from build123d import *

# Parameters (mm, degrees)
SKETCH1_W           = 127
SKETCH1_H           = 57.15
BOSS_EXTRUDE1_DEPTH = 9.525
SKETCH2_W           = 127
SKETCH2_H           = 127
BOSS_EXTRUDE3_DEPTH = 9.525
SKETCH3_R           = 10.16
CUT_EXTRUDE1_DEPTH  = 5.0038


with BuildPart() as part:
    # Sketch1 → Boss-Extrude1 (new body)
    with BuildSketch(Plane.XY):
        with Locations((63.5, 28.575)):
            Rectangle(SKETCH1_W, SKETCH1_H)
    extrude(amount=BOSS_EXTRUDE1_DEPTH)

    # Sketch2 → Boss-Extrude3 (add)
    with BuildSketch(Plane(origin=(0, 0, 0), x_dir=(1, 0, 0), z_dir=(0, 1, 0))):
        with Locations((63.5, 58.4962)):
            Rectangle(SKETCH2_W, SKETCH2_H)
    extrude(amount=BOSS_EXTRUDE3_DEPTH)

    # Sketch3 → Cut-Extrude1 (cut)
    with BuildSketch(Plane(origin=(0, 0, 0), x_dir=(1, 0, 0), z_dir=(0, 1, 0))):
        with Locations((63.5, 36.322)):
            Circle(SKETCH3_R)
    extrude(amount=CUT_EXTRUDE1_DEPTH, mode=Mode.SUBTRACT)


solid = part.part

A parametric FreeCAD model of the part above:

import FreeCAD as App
import Part
import Sketcher
Q = App.Units.Quantity


def add_polygon(sketch, points):
    """Adds a closed chain of lines whose ends are joined by coincident constraints."""
    first, n = sketch.GeometryCount, len(points)
    for a, b in zip(points, points[1:] + points[:1]):
        sketch.addGeometry(Part.LineSegment(App.Vector(*a, 0), App.Vector(*b, 0)), False)
    for i in range(n):
        sketch.addConstraint(Sketcher.Constraint("Coincident", first + i, 2, first + (i + 1) % n, 1))

doc = App.newDocument("Part")
body = doc.addObject("PartDesign::Body", "Body")

# Sketch on XY plane
sketch1 = body.newObject("Sketcher::SketchObject", "Sketch")
sketch1.AttachmentSupport = (doc.getObject("XY_Plane"), [""])
sketch1.MapMode = "FlatFace"
add_polygon(sketch1, [(0, 57), (0, 0), (127, 0), (127, 57)])  # lines 0-3
sketch1.addConstraint([
    Sketcher.Constraint("Vertical", 0),
    Sketcher.Constraint("Horizontal", 1),
    Sketcher.Constraint("Vertical", 2),
    Sketcher.Constraint("Horizontal", 3),
    Sketcher.Constraint("Coincident", 0, 2, -1, 1),
    Sketcher.Constraint("DistanceX", 1, 1, 1, 2, Q("5 in")),
    Sketcher.Constraint("DistanceY", 0, 2, 0, 1, Q("2.25 in")),
])
pad1 = body.newObject("PartDesign::Pad", "Pad")
pad1.Profile = sketch1
pad1.Length = Q("0.375 in")

# Sketch on XZ plane
sketch2 = body.newObject("Sketcher::SketchObject", "Sketch001")
sketch2.AttachmentSupport = (doc.getObject("XZ_Plane"), [""])
sketch2.MapMode = "FlatFace"
add_polygon(sketch2, [(0, -122), (0, 5), (127, 5), (127, -122)])  # lines 0-3
sketch2.addConstraint([
    Sketcher.Constraint("Vertical", 0),
    Sketcher.Constraint("Horizontal", 1),
    Sketcher.Constraint("Vertical", 2),
    Sketcher.Constraint("Horizontal", 3),
    Sketcher.Constraint("PointOnObject", 0, 2, -2),
    Sketcher.Constraint("Equal", 3, 0),
    Sketcher.Constraint("DistanceX", 1, 1, 1, 2, Q("5 in")),
    Sketcher.Constraint("DistanceY", -1, 1, 0, 2, Q("0.197 in")),
])
pad2 = body.newObject("PartDesign::Pad", "Pad001")
pad2.Profile = sketch2
pad2.Length = Q("0.375 in")
pad2.Reversed = True

# Sketch on XZ plane
sketch3 = body.newObject("Sketcher::SketchObject", "Sketch002")
sketch3.AttachmentSupport = (doc.getObject("XZ_Plane"), [""])
sketch3.MapMode = "FlatFace"
sketch3.addGeometry(Part.Circle(App.Vector(64, -36, 0), App.Vector(0, 0, 1), 10), False)
sketch3.addConstraint([
    Sketcher.Constraint("Diameter", 0, Q("0.8 in")),
    Sketcher.Constraint("DistanceX", -1, 1, 0, 3, Q("2.5 in")),
    Sketcher.Constraint("DistanceY", 0, 3, -1, 1, Q("1.43 in")),
])
pocket1 = body.newObject("PartDesign::Pocket", "Pocket")
pocket1.Profile = sketch3
pocket1.Length = Q("0.197 in")

doc.recompute()
